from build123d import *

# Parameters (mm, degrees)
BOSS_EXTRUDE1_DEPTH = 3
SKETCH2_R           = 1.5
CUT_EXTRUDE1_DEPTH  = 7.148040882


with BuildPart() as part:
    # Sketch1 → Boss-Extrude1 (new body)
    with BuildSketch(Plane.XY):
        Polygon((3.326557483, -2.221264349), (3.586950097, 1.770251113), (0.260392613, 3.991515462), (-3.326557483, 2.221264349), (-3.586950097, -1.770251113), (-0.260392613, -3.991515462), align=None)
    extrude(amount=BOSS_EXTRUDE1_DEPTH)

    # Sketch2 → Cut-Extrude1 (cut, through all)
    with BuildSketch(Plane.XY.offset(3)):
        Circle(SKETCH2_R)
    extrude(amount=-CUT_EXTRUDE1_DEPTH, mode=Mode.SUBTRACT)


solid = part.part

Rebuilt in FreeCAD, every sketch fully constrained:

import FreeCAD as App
import Part
import Sketcher

doc = App.newDocument("Part")
body = doc.addObject("PartDesign::Body", "Body")

sketch1 = body.newObject("Sketcher::SketchObject", "Sketch")
sketch1.AttachmentSupport = (doc.getObject("XY_Plane"), [""])
sketch1.MapMode = "FlatFace"
sketch1.addGeometry(Part.LineSegment(App.Vector(3.3, -2.2, 0), App.Vector(3.6, 1.8, 0)), False)
sketch1.addGeometry(Part.LineSegment(App.Vector(3.6, 1.8, 0), App.Vector(0.3, 4, 0)), False)
sketch1.addGeometry(Part.LineSegment(App.Vector(0.3, 4, 0), App.Vector(-3.3, 2.2, 0)), False)
sketch1.addGeometry(Part.LineSegment(App.Vector(-3.3, 2.2, 0), App.Vector(-3.6, -1.8, 0)), False)
sketch1.addGeometry(Part.LineSegment(App.Vector(-3.6, -1.8, 0), App.Vector(-0.3, -4, 0)), False)
sketch1.addGeometry(Part.LineSegment(App.Vector(-0.3, -4, 0), App.Vector(3.3, -2.2, 0)), False)
sketch1.addConstraint(Sketcher.Constraint("Coincident", 0, 2, 1, 1))
sketch1.addConstraint(Sketcher.Constraint("Coincident", 1, 2, 2, 1))
sketch1.addConstraint(Sketcher.Constraint("Coincident", 2, 2, 3, 1))
sketch1.addConstraint(Sketcher.Constraint("Coincident", 3, 2, 4, 1))
sketch1.addConstraint(Sketcher.Constraint("Coincident", 4, 2, 5, 1))
sketch1.addConstraint(Sketcher.Constraint("Coincident", 5, 2, 0, 1))
sketch1.addConstraint(Sketcher.Constraint("Symmetric", 0, 2, 3, 2, -1, 1))
sketch1.addConstraint(Sketcher.Constraint("Symmetric", 1, 2, 4, 2, -1, 1))
sketch1.addConstraint(Sketcher.Constraint("Symmetric", 2, 2, 5, 2, -1, 1))
sketch1.addConstraint(Sketcher.Constraint("Equal", 0, 1))
sketch1.addConstraint(Sketcher.Constraint("Equal", 1, 2))
sketch1.addConstraint(Sketcher.Constraint("Distance", 0, 4.0))
sketch1.addConstraint(Sketcher.Constraint("DistanceX", 3, 2, 0, 2, 7.1739))
sketch1.addConstraint(Sketcher.Constraint("DistanceY", -1, 1, 0, 2, 1.770251))
sketch1.addConstraint(Sketcher.Constraint("DistanceX", 2, 2, 1, 2, 3.58695))
pad1 = body.newObject("PartDesign::Pad", "Pad")
pad1.Profile = sketch1
pad1.Length = 3

sketch2 = body.newObject("Sketcher::SketchObject", "Sketch001")
sketch2.AttachmentSupport = (doc.getObject("XY_Plane"), [""])
sketch2.MapMode = "FlatFace"
sketch2.AttachmentOffset = App.Placement(App.Vector(0, 0, 3), App.Rotation())
sketch2.addGeometry(Part.Circle(App.Vector(0, 0, 0), App.Vector(0, 0, 1), 1.5), False)
sketch2.addConstraint(Sketcher.Constraint("Coincident", 0, 3, -1, 1))
sketch2.addConstraint(Sketcher.Constraint("Diameter", 0, 3.0))
pocket1 = body.newObject("PartDesign::Pocket", "Pocket")
pocket1.Profile = sketch2
pocket1.Type = "ThroughAll"

doc.recompute()
